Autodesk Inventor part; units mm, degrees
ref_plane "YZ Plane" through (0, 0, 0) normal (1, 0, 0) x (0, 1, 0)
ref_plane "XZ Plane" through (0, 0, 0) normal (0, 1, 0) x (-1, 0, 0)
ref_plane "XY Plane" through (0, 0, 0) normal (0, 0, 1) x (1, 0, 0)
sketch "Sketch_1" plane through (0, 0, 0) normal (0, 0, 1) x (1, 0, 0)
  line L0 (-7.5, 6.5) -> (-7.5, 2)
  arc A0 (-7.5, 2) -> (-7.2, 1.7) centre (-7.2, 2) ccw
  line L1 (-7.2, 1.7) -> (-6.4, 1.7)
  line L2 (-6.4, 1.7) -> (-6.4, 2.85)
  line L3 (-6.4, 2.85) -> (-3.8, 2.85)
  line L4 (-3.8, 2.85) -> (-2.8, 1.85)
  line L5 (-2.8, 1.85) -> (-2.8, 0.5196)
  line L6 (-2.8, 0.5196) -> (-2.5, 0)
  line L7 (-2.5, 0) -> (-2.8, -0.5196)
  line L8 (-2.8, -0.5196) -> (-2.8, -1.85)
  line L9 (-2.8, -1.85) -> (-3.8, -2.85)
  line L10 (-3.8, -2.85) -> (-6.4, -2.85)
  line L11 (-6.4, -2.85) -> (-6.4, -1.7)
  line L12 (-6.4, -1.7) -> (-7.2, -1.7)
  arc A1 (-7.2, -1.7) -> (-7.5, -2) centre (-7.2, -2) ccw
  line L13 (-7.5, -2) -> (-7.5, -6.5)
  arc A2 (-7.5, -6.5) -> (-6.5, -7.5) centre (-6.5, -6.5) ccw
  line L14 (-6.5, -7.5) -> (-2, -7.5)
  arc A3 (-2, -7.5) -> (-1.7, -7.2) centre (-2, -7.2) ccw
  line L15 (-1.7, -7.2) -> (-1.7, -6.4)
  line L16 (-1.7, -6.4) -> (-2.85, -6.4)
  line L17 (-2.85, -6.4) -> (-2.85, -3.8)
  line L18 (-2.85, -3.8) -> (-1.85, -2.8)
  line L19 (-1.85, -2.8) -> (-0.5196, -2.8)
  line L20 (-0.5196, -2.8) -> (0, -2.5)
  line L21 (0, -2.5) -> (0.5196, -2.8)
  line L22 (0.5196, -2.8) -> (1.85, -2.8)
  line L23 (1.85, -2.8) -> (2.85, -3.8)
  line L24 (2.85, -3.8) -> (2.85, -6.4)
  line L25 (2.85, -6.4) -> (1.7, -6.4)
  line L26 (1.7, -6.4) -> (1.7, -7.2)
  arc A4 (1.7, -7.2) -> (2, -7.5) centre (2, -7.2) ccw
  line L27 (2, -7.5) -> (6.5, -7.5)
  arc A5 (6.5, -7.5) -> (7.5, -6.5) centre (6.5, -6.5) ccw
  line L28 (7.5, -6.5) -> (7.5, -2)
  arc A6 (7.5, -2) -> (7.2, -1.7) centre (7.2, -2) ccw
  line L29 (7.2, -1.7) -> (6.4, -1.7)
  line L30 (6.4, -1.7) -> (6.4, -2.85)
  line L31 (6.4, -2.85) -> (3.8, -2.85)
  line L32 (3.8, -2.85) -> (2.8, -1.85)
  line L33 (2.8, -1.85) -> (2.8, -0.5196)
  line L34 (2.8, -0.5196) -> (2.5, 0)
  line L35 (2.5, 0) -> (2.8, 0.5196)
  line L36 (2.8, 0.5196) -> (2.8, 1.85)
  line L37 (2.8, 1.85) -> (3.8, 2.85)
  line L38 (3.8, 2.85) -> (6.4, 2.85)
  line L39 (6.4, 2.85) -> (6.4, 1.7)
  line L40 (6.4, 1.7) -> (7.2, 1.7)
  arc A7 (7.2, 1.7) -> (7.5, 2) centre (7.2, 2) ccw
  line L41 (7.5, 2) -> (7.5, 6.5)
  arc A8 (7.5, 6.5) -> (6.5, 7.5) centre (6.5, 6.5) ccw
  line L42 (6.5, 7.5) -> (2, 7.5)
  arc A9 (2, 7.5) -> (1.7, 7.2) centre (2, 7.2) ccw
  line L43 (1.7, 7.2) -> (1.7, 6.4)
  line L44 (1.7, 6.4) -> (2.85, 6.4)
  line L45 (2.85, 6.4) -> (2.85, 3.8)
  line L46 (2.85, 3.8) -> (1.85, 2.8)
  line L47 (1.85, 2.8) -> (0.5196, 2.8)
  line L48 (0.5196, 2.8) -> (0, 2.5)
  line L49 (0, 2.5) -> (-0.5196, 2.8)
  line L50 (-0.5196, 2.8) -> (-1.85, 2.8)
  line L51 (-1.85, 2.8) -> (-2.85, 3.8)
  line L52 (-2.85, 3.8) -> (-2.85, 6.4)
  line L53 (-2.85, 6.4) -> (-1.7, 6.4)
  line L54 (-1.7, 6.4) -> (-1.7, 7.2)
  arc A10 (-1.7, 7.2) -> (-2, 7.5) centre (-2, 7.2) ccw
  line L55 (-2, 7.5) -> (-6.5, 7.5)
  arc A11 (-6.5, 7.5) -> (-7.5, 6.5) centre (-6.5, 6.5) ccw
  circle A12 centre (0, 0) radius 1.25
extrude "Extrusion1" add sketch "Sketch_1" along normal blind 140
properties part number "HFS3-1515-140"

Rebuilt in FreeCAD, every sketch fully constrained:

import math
import FreeCAD as App
import Part
import Sketcher
from FreeCAD import Vector
Q = App.Units.Quantity

doc = App.newDocument("Part")
body = doc.addObject("PartDesign::Body", "Body")

sketch1 = body.newObject("Sketcher::SketchObject", "Sketch")
sketch1.AttachmentSupport = (doc.getObject("XY_Plane"), [""])
sketch1.MapMode = "FlatFace"
sketch1.addGeometry([
    Part.ArcOfCircle(Part.Circle(Vector(-6.5, 6.5, 0), Vector(0, 0, 1), 1), math.radians(90), math.radians(180)),
    Part.LineSegment(Vector(-7.5, 6.5, 0), Vector(-7.5, 2, 0)),
    Part.ArcOfCircle(Part.Circle(Vector(-7.2, 2, 0), Vector(0, 0, 1), 0.3), math.radians(180), math.radians(270)),
    Part.LineSegment(Vector(-7.2, 1.7, 0), Vector(-6.4, 1.7, 0)),
    Part.LineSegment(Vector(-6.4, 1.7, 0), Vector(-6.4, 2.85, 0)),
    Part.LineSegment(Vector(-6.4, 2.85, 0), Vector(-3.8, 2.85, 0)),
    Part.LineSegment(Vector(-3.8, 2.85, 0), Vector(-2.8, 1.85, 0)),
    Part.LineSegment(Vector(-2.8, 1.85, 0), Vector(-2.8, 0.52, 0)),
    Part.LineSegment(Vector(-2.8, 0.52, 0), Vector(-2.5, 0, 0)),
    Part.LineSegment(Vector(-2.5, 0, 0), Vector(-2.8, -0.52, 0)),
    Part.LineSegment(Vector(-2.8, -0.52, 0), Vector(-2.8, -1.85, 0)),
    Part.LineSegment(Vector(-2.8, -1.85, 0), Vector(-3.8, -2.85, 0)),
    Part.LineSegment(Vector(-3.8, -2.85, 0), Vector(-6.4, -2.85, 0)),
    Part.LineSegment(Vector(-6.4, -2.85, 0), Vector(-6.4, -1.7, 0)),
    Part.LineSegment(Vector(-6.4, -1.7, 0), Vector(-7.2, -1.7, 0)),
    Part.ArcOfCircle(Part.Circle(Vector(-7.2, -2, 0), Vector(0, 0, 1), 0.3), math.radians(90), math.radians(180)),
    Part.LineSegment(Vector(-7.5, -2, 0), Vector(-7.5, -6.5, 0)),
    Part.ArcOfCircle(Part.Circle(Vector(-6.5, -6.5, 0), Vector(0, 0, 1), 1), math.radians(180), math.radians(270)),
    Part.LineSegment(Vector(-6.5, -7.5, 0), Vector(-2, -7.5, 0)),
    Part.ArcOfCircle(Part.Circle(Vector(-2, -7.2, 0), Vector(0, 0, 1), 0.3), math.radians(-90), math.radians(0)),
    Part.LineSegment(Vector(-1.7, -7.2, 0), Vector(-1.7, -6.4, 0)),
    Part.LineSegment(Vector(-1.7, -6.4, 0), Vector(-2.85, -6.4, 0)),
    Part.LineSegment(Vector(-2.85, -6.4, 0), Vector(-2.85, -3.8, 0)),
    Part.LineSegment(Vector(-2.85, -3.8, 0), Vector(-1.85, -2.8, 0)),
    Part.LineSegment(Vector(-1.85, -2.8, 0), Vector(-0.52, -2.8, 0)),
    Part.LineSegment(Vector(-0.52, -2.8, 0), Vector(0, -2.5, 0)),
    Part.LineSegment(Vector(0, -2.5, 0), Vector(0.52, -2.8, 0)),
    Part.LineSegment(Vector(0.52, -2.8, 0), Vector(1.85, -2.8, 0)),
    Part.LineSegment(Vector(1.85, -2.8, 0), Vector(2.85, -3.8, 0)),
    Part.LineSegment(Vector(2.85, -3.8, 0), Vector(2.85, -6.4, 0)),
    Part.LineSegment(Vector(2.85, -6.4, 0), Vector(1.7, -6.4, 0)),
    Part.LineSegment(Vector(1.7, -6.4, 0), Vector(1.7, -7.2, 0)),
    Part.ArcOfCircle(Part.Circle(Vector(2, -7.2, 0), Vector(0, 0, 1), 0.3), math.radians(180), math.radians(270)),
    Part.LineSegment(Vector(2, -7.5, 0), Vector(6.5, -7.5, 0)),
    Part.ArcOfCircle(Part.Circle(Vector(6.5, -6.5, 0), Vector(0, 0, 1), 1), math.radians(-90), math.radians(0)),
    Part.LineSegment(Vector(7.5, -6.5, 0), Vector(7.5, -2, 0)),
    Part.ArcOfCircle(Part.Circle(Vector(7.2, -2, 0), Vector(0, 0, 1), 0.3), math.radians(0), math.radians(90)),
    Part.LineSegment(Vector(7.2, -1.7, 0), Vector(6.4, -1.7, 0)),
    Part.LineSegment(Vector(6.4, -1.7, 0), Vector(6.4, -2.85, 0)),
    Part.LineSegment(Vector(6.4, -2.85, 0), Vector(3.8, -2.85, 0)),
    Part.LineSegment(Vector(3.8, -2.85, 0), Vector(2.8, -1.85, 0)),
    Part.LineSegment(Vector(2.8, -1.85, 0), Vector(2.8, -0.52, 0)),
    Part.LineSegment(Vector(2.8, -0.52, 0), Vector(2.5, 0, 0)),
    Part.LineSegment(Vector(2.5, 0, 0), Vector(2.8, 0.52, 0)),
    Part.LineSegment(Vector(2.8, 0.52, 0), Vector(2.8, 1.85, 0)),
    Part.LineSegment(Vector(2.8, 1.85, 0), Vector(3.8, 2.85, 0)),
    Part.LineSegment(Vector(3.8, 2.85, 0), Vector(6.4, 2.85, 0)),
    Part.LineSegment(Vector(6.4, 2.85, 0), Vector(6.4, 1.7, 0)),
    Part.LineSegment(Vector(6.4, 1.7, 0), Vector(7.2, 1.7, 0)),
    Part.ArcOfCircle(Part.Circle(Vector(7.2, 2, 0), Vector(0, 0, 1), 0.3), math.radians(-90), math.radians(0)),
    Part.LineSegment(Vector(7.5, 2, 0), Vector(7.5, 6.5, 0)),
    Part.ArcOfCircle(Part.Circle(Vector(6.5, 6.5, 0), Vector(0, 0, 1), 1), math.radians(0), math.radians(90)),
    Part.LineSegment(Vector(6.5, 7.5, 0), Vector(2, 7.5, 0)),
    Part.ArcOfCircle(Part.Circle(Vector(2, 7.2, 0), Vector(0, 0, 1), 0.3), math.radians(90), math.radians(180)),
    Part.LineSegment(Vector(1.7, 7.2, 0), Vector(1.7, 6.4, 0)),
    Part.LineSegment(Vector(1.7, 6.4, 0), Vector(2.85, 6.4, 0)),
    Part.LineSegment(Vector(2.85, 6.4, 0), Vector(2.85, 3.8, 0)),
    Part.LineSegment(Vector(2.85, 3.8, 0), Vector(1.85, 2.8, 0)),
    Part.LineSegment(Vector(1.85, 2.8, 0), Vector(0.52, 2.8, 0)),
    Part.LineSegment(Vector(0.52, 2.8, 0), Vector(0, 2.5, 0)),
    Part.LineSegment(Vector(0, 2.5, 0), Vector(-0.52, 2.8, 0)),
    Part.LineSegment(Vector(-0.52, 2.8, 0), Vector(-1.85, 2.8, 0)),
    Part.LineSegment(Vector(-1.85, 2.8, 0), Vector(-2.85, 3.8, 0)),
    Part.LineSegment(Vector(-2.85, 3.8, 0), Vector(-2.85, 6.4, 0)),
    Part.LineSegment(Vector(-2.85, 6.4, 0), Vector(-1.7, 6.4, 0)),
    Part.LineSegment(Vector(-1.7, 6.4, 0), Vector(-1.7, 7.2, 0)),
    Part.ArcOfCircle(Part.Circle(Vector(-2, 7.2, 0), Vector(0, 0, 1), 0.3), math.radians(0), math.radians(90)),
    Part.LineSegment(Vector(-2, 7.5, 0), Vector(-6.5, 7.5, 0)),
    Part.Circle(Vector(0, 0, 0), Vector(0, 0, 1), 1.25),
], False)
sketch1.addConstraint([
    Sketcher.Constraint("Tangent", 0, 2, 1, 1),
    Sketcher.Constraint("Tangent", 1, 2, 2, 1),
    Sketcher.Constraint("Tangent", 2, 2, 3, 1),
    Sketcher.Constraint("Coincident", 3, 2, 4, 1),
    Sketcher.Constraint("Coincident", 4, 2, 5, 1),
    Sketcher.Constraint("Coincident", 5, 2, 6, 1),
    Sketcher.Constraint("Coincident", 6, 2, 7, 1),
    Sketcher.Constraint("Coincident", 7, 2, 8, 1),
    Sketcher.Constraint("Coincident", 8, 2, 9, 1),
    Sketcher.Constraint("Coincident", 9, 2, 10, 1),
    Sketcher.Constraint("Coincident", 10, 2, 11, 1),
    Sketcher.Constraint("Coincident", 11, 2, 12, 1),
    Sketcher.Constraint("Coincident", 12, 2, 13, 1),
    Sketcher.Constraint("Coincident", 13, 2, 14, 1),
    Sketcher.Constraint("Tangent", 14, 2, 15, 1),
    Sketcher.Constraint("Tangent", 15, 2, 16, 1),
    Sketcher.Constraint("Tangent", 16, 2, 17, 1),
    Sketcher.Constraint("Tangent", 17, 2, 18, 1),
    Sketcher.Constraint("Tangent", 18, 2, 19, 1),
    Sketcher.Constraint("Tangent", 19, 2, 20, 1),
    Sketcher.Constraint("Coincident", 20, 2, 21, 1),
    Sketcher.Constraint("Coincident", 21, 2, 22, 1),
    Sketcher.Constraint("Coincident", 22, 2, 23, 1),
    Sketcher.Constraint("Coincident", 23, 2, 24, 1),
    Sketcher.Constraint("Coincident", 24, 2, 25, 1),
    Sketcher.Constraint("Coincident", 25, 2, 26, 1),
    Sketcher.Constraint("Coincident", 26, 2, 27, 1),
    Sketcher.Constraint("Coincident", 27, 2, 28, 1),
    Sketcher.Constraint("Coincident", 28, 2, 29, 1),
    Sketcher.Constraint("Coincident", 29, 2, 30, 1),
    Sketcher.Constraint("Coincident", 30, 2, 31, 1),
    Sketcher.Constraint("Tangent", 31, 2, 32, 1),
    Sketcher.Constraint("Tangent", 32, 2, 33, 1),
    Sketcher.Constraint("Tangent", 33, 2, 34, 1),
    Sketcher.Constraint("Tangent", 34, 2, 35, 1),
    Sketcher.Constraint("Tangent", 35, 2, 36, 1),
    Sketcher.Constraint("Tangent", 36, 2, 37, 1),
    Sketcher.Constraint("Coincident", 37, 2, 38, 1),
    Sketcher.Constraint("Coincident", 38, 2, 39, 1),
    Sketcher.Constraint("Coincident", 39, 2, 40, 1),
    Sketcher.Constraint("Coincident", 40, 2, 41, 1),
    Sketcher.Constraint("Coincident", 41, 2, 42, 1),
    Sketcher.Constraint("Coincident", 42, 2, 43, 1),
    Sketcher.Constraint("Coincident", 43, 2, 44, 1),
    Sketcher.Constraint("Coincident", 44, 2, 45, 1),
    Sketcher.Constraint("Coincident", 45, 2, 46, 1),
    Sketcher.Constraint("Coincident", 46, 2, 47, 1),
    Sketcher.Constraint("Coincident", 47, 2, 48, 1),
    Sketcher.Constraint("Tangent", 48, 2, 49, 1),
    Sketcher.Constraint("Tangent", 49, 2, 50, 1),
    Sketcher.Constraint("Tangent", 50, 2, 51, 1),
    Sketcher.Constraint("Tangent", 51, 2, 52, 1),
    Sketcher.Constraint("Tangent", 52, 2, 53, 1),
    Sketcher.Constraint("Tangent", 53, 2, 54, 1),
    Sketcher.Constraint("Coincident", 54, 2, 55, 1),
    Sketcher.Constraint("Coincident", 55, 2, 56, 1),
    Sketcher.Constraint("Coincident", 56, 2, 57, 1),
    Sketcher.Constraint("Coincident", 57, 2, 58, 1),
    Sketcher.Constraint("Coincident", 58, 2, 59, 1),
    Sketcher.Constraint("Coincident", 59, 2, 60, 1),
    Sketcher.Constraint("Coincident", 60, 2, 61, 1),
    Sketcher.Constraint("Coincident", 61, 2, 62, 1),
    Sketcher.Constraint("Coincident", 62, 2, 63, 1),
    Sketcher.Constraint("Coincident", 63, 2, 64, 1),
    Sketcher.Constraint("Coincident", 64, 2, 65, 1),
    Sketcher.Constraint("Tangent", 65, 2, 66, 1),
    Sketcher.Constraint("Tangent", 66, 2, 67, 1),
    Sketcher.Constraint("Tangent", 67, 2, 0, 1),
    Sketcher.Constraint("Vertical", 1),
    Sketcher.Constraint("Horizontal", 3),
    Sketcher.Constraint("Vertical", 4),
    Sketcher.Constraint("Horizontal", 5),
    Sketcher.Constraint("Vertical", 7),
    Sketcher.Constraint("Vertical", 10),
    Sketcher.Constraint("Horizontal", 12),
    Sketcher.Constraint("Vertical", 13),
    Sketcher.Constraint("Horizontal", 14),
    Sketcher.Constraint("Vertical", 16),
    Sketcher.Constraint("Horizontal", 18),
    Sketcher.Constraint("Vertical", 20),
    Sketcher.Constraint("Horizontal", 21),
    Sketcher.Constraint("Vertical", 22),
    Sketcher.Constraint("Horizontal", 24),
    Sketcher.Constraint("Horizontal", 27),
    Sketcher.Constraint("Vertical", 29),
    Sketcher.Constraint("Horizontal", 30),
    Sketcher.Constraint("Vertical", 31),
    Sketcher.Constraint("Horizontal", 33),
    Sketcher.Constraint("Vertical", 35),
    Sketcher.Constraint("Horizontal", 37),
    Sketcher.Constraint("Vertical", 38),
    Sketcher.Constraint("Horizontal", 39),
    Sketcher.Constraint("Vertical", 41),
    Sketcher.Constraint("Vertical", 44),
    Sketcher.Constraint("Horizontal", 46),
    Sketcher.Constraint("Vertical", 47),
    Sketcher.Constraint("Horizontal", 48),
    Sketcher.Constraint("Vertical", 50),
    Sketcher.Constraint("Horizontal", 52),
    Sketcher.Constraint("Vertical", 54),
    Sketcher.Constraint("Horizontal", 55),
    Sketcher.Constraint("Vertical", 56),
    Sketcher.Constraint("Horizontal", 58),
    Sketcher.Constraint("Horizontal", 61),
    Sketcher.Constraint("Vertical", 63),
    Sketcher.Constraint("Horizontal", 64),
    Sketcher.Constraint("Vertical", 65),
    Sketcher.Constraint("Horizontal", 67),
    Sketcher.Constraint("Coincident", 68, 3, -1, 1),
    Sketcher.Constraint("Equal", 2, 15),
    Sketcher.Constraint("Equal", 0, 17),
    Sketcher.Constraint("Equal", 15, 19),
    Sketcher.Constraint("Equal", 19, 32),
    Sketcher.Constraint("Equal", 17, 34),
    Sketcher.Constraint("Equal", 32, 36),
    Sketcher.Constraint("Equal", 36, 49),
    Sketcher.Constraint("Equal", 34, 51),
    Sketcher.Constraint("Equal", 49, 53),
    Sketcher.Constraint("Equal", 53, 66),
    Sketcher.Constraint("Symmetric", 0, 3, 34, 3, -1, 1),
    Sketcher.Constraint("Symmetric", 15, 3, 49, 3, -1, 1),
    Sketcher.Constraint("Symmetric", 19, 3, 53, 3, -1, 1),
    Sketcher.Constraint("Symmetric", 3, 2, 37, 2, -1, 1),
    Sketcher.Constraint("Symmetric", 5, 2, 39, 2, -1, 1),
    Sketcher.Constraint("Symmetric", 6, 2, 40, 2, -1, 1),
    Sketcher.Constraint("Symmetric", 8, 2, 42, 2, -1, 1),
    Sketcher.Constraint("Symmetric", 9, 2, 43, 2, -1, 1),
    Sketcher.Constraint("Symmetric", 11, 2, 45, 2, -1, 1),
    Sketcher.Constraint("Symmetric", 21, 2, 55, 2, -1, 1),
    Sketcher.Constraint("Symmetric", 23, 2, 57, 2, -1, 1),
    Sketcher.Constraint("Symmetric", 25, 2, 59, 2, -1, 1),
    Sketcher.Constraint("Symmetric", 26, 2, 60, 2, -1, 1),
    Sketcher.Constraint("Symmetric", 28, 2, 62, 2, -1, 1),
    Sketcher.Constraint("Symmetric", 30, 2, 64, 2, -1, 1),
    Sketcher.Constraint("Symmetric", 19, 3, 32, 3, -2),
    Sketcher.Constraint("Symmetric", 15, 3, 36, 3, -2),
    Sketcher.Constraint("Symmetric", 24, 2, 26, 2, -2),
    Sketcher.Constraint("Symmetric", 22, 2, 28, 2, -2),
    Sketcher.Constraint("Symmetric", 12, 2, 38, 2, -2),
    Sketcher.Constraint("Symmetric", 10, 2, 40, 2, -2),
    Sketcher.Constraint("PointOnObject", 8, 2, -1),
    Sketcher.Constraint("PointOnObject", 25, 2, -2),
    Sketcher.Constraint("Perpendicular", 6, 11),
    Sketcher.Constraint("Parallel", 11, 23),
    Sketcher.Constraint("Perpendicular", 8, 25),
    Sketcher.Constraint("Perpendicular", 9, 26),
    Sketcher.Constraint("Perpendicular", 23, 28),
    Sketcher.Constraint("Perpendicular", 25, 42),
    Sketcher.Constraint("Perpendicular", 40, 45),
    Sketcher.Constraint("Parallel", 45, 57),
    Sketcher.Constraint("Perpendicular", 42, 59),
    Sketcher.Constraint("Perpendicular", 57, 62),
    Sketcher.Constraint("Horizontal", 21, 2, 29, 2),
    Sketcher.Constraint("Vertical", 5, 2, 11, 2),
    Sketcher.Constraint("Vertical", 38, 2, 46, 2),
    Sketcher.Constraint("Equal", 67, 1),
    Sketcher.Constraint("Equal", 64, 4),
    Sketcher.Constraint("Equal", 61, 7),
    Sketcher.Constraint("Equal", 48, 20),
    Sketcher.Constraint("Equal", 46, 22),
    Sketcher.Constraint("Equal", 11, 23),
    Sketcher.Constraint("Equal", 9, 25),
    Sketcher.Constraint("Radius", 0, 1.0),
    Sketcher.Constraint("Diameter", 68, 2.5),
    Sketcher.Constraint("Radius", 2, 0.3),
    Sketcher.Constraint("Angle", 8, Q("-59.9993 deg")),
    Sketcher.Constraint("DistanceX", 3, 1, 3, 2, 0.8),
    Sketcher.Constraint("DistanceX", 5, 1, 5, 2, 2.6),
    Sketcher.Constraint("DistanceX", 18, 1, 18, 2, 4.5),
    Sketcher.Constraint("DistanceY", -1, 1, 2, 3, 2.0),
    Sketcher.Constraint("Distance", 8, 0.6),
    Sketcher.Constraint("DistanceX", 21, 2, 21, 1, 1.15),
    Sketcher.Constraint("DistanceX", 6, 2, -1, 1, 2.8),
])
pad1 = body.newObject("PartDesign::Pad", "Pad")
pad1.Profile = sketch1
pad1.Length = 140

doc.recompute()
